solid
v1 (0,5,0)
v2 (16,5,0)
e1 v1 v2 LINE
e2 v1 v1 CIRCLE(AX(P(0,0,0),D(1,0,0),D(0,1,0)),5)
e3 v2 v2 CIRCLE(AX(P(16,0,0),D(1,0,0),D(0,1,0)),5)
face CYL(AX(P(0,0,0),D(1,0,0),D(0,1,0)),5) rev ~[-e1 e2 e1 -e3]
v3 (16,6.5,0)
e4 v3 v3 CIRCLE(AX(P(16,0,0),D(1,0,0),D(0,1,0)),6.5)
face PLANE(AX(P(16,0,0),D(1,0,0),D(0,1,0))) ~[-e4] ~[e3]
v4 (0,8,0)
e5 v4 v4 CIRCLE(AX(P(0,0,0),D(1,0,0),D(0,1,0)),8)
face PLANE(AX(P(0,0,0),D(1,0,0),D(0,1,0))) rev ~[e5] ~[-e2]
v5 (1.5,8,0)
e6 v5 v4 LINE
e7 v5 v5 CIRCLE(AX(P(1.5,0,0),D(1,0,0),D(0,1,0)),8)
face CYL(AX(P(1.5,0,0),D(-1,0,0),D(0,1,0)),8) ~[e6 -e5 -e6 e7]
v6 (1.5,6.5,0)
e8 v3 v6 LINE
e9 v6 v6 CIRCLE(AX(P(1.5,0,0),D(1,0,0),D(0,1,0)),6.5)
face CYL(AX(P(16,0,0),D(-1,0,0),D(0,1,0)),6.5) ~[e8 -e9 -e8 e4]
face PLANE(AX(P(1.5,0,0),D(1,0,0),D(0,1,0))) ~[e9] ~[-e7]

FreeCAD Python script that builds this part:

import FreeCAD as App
import Part
import Sketcher
Q = App.Units.Quantity

doc = App.newDocument("Part")
params = doc.addObject("Spreadsheet::Sheet", "Params")
for row, (alias, value) in enumerate([
    ("sketch1_width", "16 mm"),
    ("sketch1_height", "3 mm"),
    ("revolution_angle", "360 deg"),
], start=1):
    params.set(f"A{row}", alias)
    params.set(f"B{row}", "=" + value)
    params.setAlias(f"B{row}", alias)

body = doc.addObject("PartDesign::Body", "Body")

# Sketch on XY plane
sketch1 = body.newObject("Sketcher::SketchObject", "Sketch")
sketch1.AttachmentSupport = (doc.getObject("XY_Plane"), [""])
sketch1.MapMode = "FlatFace"
sketch1.addGeometry([
    Part.LineSegment(App.Vector(1.5, 6.5, 0), App.Vector(1.5, 8, 0)),  # 0
    Part.LineSegment(App.Vector(1.5, 8, 0), App.Vector(0, 8, 0)),  # 1
    Part.LineSegment(App.Vector(0, 8, 0), App.Vector(0, 5, 0)),  # 2
    Part.LineSegment(App.Vector(0, 5, 0), App.Vector(16, 5, 0)),  # 3
    Part.LineSegment(App.Vector(16, 5, 0), App.Vector(16, 6.5, 0)),  # 4
    Part.LineSegment(App.Vector(16, 6.5, 0), App.Vector(1.5, 6.5, 0)),  # 5
], False)
sketch1.addConstraint([
    Sketcher.Constraint("Coincident", 0, 2, 1, 1),
    Sketcher.Constraint("Coincident", 1, 2, 2, 1),
    Sketcher.Constraint("Coincident", 2, 2, 3, 1),
    Sketcher.Constraint("Coincident", 3, 2, 4, 1),
    Sketcher.Constraint("Coincident", 4, 2, 5, 1),
    Sketcher.Constraint("Coincident", 5, 2, 0, 1),
    Sketcher.Constraint("Vertical", 0),
    Sketcher.Constraint("Horizontal", 1),
    Sketcher.Constraint("Vertical", 2),
    Sketcher.Constraint("Horizontal", 3),
    Sketcher.Constraint("Vertical", 4),
    Sketcher.Constraint("Horizontal", 5),
    Sketcher.Constraint("PointOnObject", 1, 2, -2),
    Sketcher.Constraint("Equal", 1, 0),
    Sketcher.Constraint("Equal", 0, 4),
    Sketcher.Constraint("DistanceX", 3, 1, 3, 2, Q("16 mm")),
    Sketcher.Constraint("DistanceY", 2, 2, 2, 1, Q("3 mm")),
    Sketcher.Constraint("DistanceY", -1, 1, 0, 2, Q("8 mm")),
])
sketch1.setExpression("Constraints[15]", "Params.sketch1_width")
sketch1.setExpression("Constraints[16]", "Params.sketch1_height")
revolution = body.newObject("PartDesign::Revolution", "Revolution")
revolution.Profile = sketch1
revolution.ReferenceAxis = (sketch1, ["H_Axis"])
revolution.setExpression("Angle", "Params.revolution_angle")

doc.recompute()
